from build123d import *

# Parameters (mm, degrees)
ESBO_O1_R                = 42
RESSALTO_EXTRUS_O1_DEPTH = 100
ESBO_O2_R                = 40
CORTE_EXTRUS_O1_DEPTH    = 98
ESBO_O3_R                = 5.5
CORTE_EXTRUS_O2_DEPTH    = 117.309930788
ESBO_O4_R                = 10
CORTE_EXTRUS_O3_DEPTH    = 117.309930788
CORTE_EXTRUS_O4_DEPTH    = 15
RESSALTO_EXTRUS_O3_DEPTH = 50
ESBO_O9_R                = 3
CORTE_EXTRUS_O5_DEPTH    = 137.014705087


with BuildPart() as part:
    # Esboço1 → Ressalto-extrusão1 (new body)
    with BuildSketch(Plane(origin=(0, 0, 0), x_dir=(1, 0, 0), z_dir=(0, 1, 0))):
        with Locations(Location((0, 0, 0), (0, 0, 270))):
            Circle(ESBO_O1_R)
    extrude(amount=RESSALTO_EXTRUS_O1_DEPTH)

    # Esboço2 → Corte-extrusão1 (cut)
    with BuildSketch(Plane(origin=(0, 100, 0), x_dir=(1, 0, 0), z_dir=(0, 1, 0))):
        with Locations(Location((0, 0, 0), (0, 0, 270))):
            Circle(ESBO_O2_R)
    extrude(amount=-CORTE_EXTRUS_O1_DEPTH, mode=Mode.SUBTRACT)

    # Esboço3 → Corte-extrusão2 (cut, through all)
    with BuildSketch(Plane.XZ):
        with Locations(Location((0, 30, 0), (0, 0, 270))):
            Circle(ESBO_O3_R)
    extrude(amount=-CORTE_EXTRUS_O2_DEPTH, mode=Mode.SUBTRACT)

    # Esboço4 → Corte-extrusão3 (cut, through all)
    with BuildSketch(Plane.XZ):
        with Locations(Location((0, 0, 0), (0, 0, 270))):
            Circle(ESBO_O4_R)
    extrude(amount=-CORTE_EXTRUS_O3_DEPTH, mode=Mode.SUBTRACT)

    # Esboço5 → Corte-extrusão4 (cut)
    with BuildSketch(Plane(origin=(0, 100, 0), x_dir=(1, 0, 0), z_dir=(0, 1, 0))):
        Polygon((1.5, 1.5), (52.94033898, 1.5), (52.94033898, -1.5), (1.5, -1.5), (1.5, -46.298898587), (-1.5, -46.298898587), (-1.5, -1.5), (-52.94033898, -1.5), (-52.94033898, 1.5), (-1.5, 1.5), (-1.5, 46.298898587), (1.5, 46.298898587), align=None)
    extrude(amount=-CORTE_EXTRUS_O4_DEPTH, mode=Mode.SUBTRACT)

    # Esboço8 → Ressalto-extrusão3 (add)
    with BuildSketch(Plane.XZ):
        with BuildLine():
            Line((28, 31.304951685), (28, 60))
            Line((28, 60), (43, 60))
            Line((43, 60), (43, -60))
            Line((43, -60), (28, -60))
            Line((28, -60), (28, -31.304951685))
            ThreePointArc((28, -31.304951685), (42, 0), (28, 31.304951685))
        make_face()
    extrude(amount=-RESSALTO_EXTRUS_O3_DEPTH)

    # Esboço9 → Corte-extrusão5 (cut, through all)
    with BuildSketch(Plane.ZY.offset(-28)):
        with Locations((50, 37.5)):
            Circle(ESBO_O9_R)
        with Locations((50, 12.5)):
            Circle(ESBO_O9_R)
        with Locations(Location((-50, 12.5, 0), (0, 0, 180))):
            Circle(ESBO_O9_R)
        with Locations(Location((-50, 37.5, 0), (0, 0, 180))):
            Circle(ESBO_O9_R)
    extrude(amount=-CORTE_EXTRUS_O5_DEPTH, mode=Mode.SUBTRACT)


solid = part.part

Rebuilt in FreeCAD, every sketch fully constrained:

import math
import FreeCAD as App
import Part
import Sketcher

V = App.Vector
Q = App.Units.Quantity

doc = App.newDocument("Part")
params = doc.addObject("Spreadsheet::Sheet", "Params")
for row, (alias, value) in enumerate([
    ("sketch1_diameter", "84 mm"),
    ("pad1_length", "100 mm"),
    ("sketch2_diameter", "80 mm"),
    ("pocket1_length", "98 mm"),
    ("sketch3_diameter", "11 mm"),
    ("sketch4_diameter", "20 mm"),
    ("sketch5_width", "3 mm"),
    ("pocket4_length", "15 mm"),
    ("sketch6_radius", "42 mm"),
    ("sketch6_width", "15 mm"),
    ("sketch6_height", "120 mm"),
    ("pad2_length", "50 mm"),
    ("sketch7_diameter", "6 mm"),
], start=1):
    params.set(f"A{row}", alias)
    params.set(f"B{row}", "=" + value)
    params.setAlias(f"B{row}", alias)

body = doc.addObject("PartDesign::Body", "Body")

sketch1 = doc.addObject("Sketcher::SketchObject", "Sketch")
body.addObject(sketch1)
sketch1.AttachmentSupport = (doc.XZ_Plane, [""])
sketch1.MapMode = "FlatFace"
sketch1.addGeometry(Part.Circle(V(0, 0, 0), V(0, 0, 1), 42), False)
sketch1.addConstraint(Sketcher.Constraint("Coincident", 0, 3, -1, 1))
sketch1.addConstraint(Sketcher.Constraint("Diameter", 0, Q("84 mm")))
sketch1.setExpression("Constraints[1]", "Params.sketch1_diameter")
pad1 = doc.addObject("PartDesign::Pad", "Pad")
body.addObject(pad1)
pad1.Profile = sketch1
pad1.setExpression("Length", "Params.pad1_length")
pad1.Reversed = True

sketch2 = doc.addObject("Sketcher::SketchObject", "Sketch001")
body.addObject(sketch2)
sketch2.AttachmentSupport = (doc.XZ_Plane, [""])
sketch2.MapMode = "FlatFace"
sketch2.AttachmentOffset = App.Placement(V(0, 0, -100), App.Rotation())
sketch2.addGeometry(Part.Circle(V(0, 0, 0), V(0, 0, 1), 40), False)
sketch2.addConstraint(Sketcher.Constraint("Coincident", 0, 3, -1, 1))
sketch2.addConstraint(Sketcher.Constraint("Diameter", 0, Q("80 mm")))
sketch2.setExpression("Constraints[1]", "Params.sketch2_diameter")
pocket1 = doc.addObject("PartDesign::Pocket", "Pocket")
body.addObject(pocket1)
pocket1.Profile = sketch2
pocket1.setExpression("Length", "Params.pocket1_length")
pocket1.Reversed = True

sketch3 = doc.addObject("Sketcher::SketchObject", "Sketch002")
body.addObject(sketch3)
sketch3.AttachmentSupport = (doc.XZ_Plane, [""])
sketch3.MapMode = "FlatFace"
sketch3.addGeometry(Part.Circle(V(0, 30, 0), V(0, 0, 1), 5.5), False)
sketch3.addConstraint(Sketcher.Constraint("PointOnObject", 0, 3, -2))
sketch3.addConstraint(Sketcher.Constraint("Diameter", 0, Q("11 mm")))
sketch3.addConstraint(Sketcher.Constraint("DistanceY", -1, 1, 0, 3, Q("30 mm")))
sketch3.setExpression("Constraints[1]", "Params.sketch3_diameter")
pocket2 = doc.addObject("PartDesign::Pocket", "Pocket001")
body.addObject(pocket2)
pocket2.Profile = sketch3
pocket2.Type = "ThroughAll"

sketch4 = doc.addObject("Sketcher::SketchObject", "Sketch003")
body.addObject(sketch4)
sketch4.AttachmentSupport = (doc.XZ_Plane, [""])
sketch4.MapMode = "FlatFace"
sketch4.addGeometry(Part.Circle(V(0, 0, 0), V(0, 0, 1), 10), False)
sketch4.addConstraint(Sketcher.Constraint("Coincident", 0, 3, -1, 1))
sketch4.addConstraint(Sketcher.Constraint("Diameter", 0, Q("20 mm")))
sketch4.setExpression("Constraints[1]", "Params.sketch4_diameter")
pocket3 = doc.addObject("PartDesign::Pocket", "Pocket002")
body.addObject(pocket3)
pocket3.Profile = sketch4
pocket3.Type = "ThroughAll"

sketch5 = doc.addObject("Sketcher::SketchObject", "Sketch004")
body.addObject(sketch5)
sketch5.AttachmentSupport = (doc.XZ_Plane, [""])
sketch5.MapMode = "FlatFace"
sketch5.AttachmentOffset = App.Placement(V(0, 0, -100), App.Rotation())
sketch5.addGeometry(Part.LineSegment(V(52.940339, -1.5, 0), V(1.5, -1.5, 0)), False)
sketch5.addGeometry(Part.LineSegment(V(1.5, -1.5, 0), V(1.5, -46.298899, 0)), False)
sketch5.addGeometry(Part.LineSegment(V(1.5, -46.298899, 0), V(-1.5, -46.298899, 0)), False)
sketch5.addGeometry(Part.LineSegment(V(-1.5, -46.298899, 0), V(-1.5, -1.5, 0)), False)
sketch5.addGeometry(Part.LineSegment(V(-1.5, -1.5, 0), V(-52.940339, -1.5, 0)), False)
sketch5.addGeometry(Part.LineSegment(V(-52.940339, -1.5, 0), V(-52.940339, 1.5, 0)), False)
sketch5.addGeometry(Part.LineSegment(V(-52.940339, 1.5, 0), V(-1.5, 1.5, 0)), False)
sketch5.addGeometry(Part.LineSegment(V(-1.5, 1.5, 0), V(-1.5, 46.298899, 0)), False)
sketch5.addGeometry(Part.LineSegment(V(-1.5, 46.298899, 0), V(1.5, 46.298899, 0)), False)
sketch5.addGeometry(Part.LineSegment(V(1.5, 46.298899, 0), V(1.5, 1.5, 0)), False)
sketch5.addGeometry(Part.LineSegment(V(1.5, 1.5, 0), V(52.940339, 1.5, 0)), False)
sketch5.addGeometry(Part.LineSegment(V(52.940339, 1.5, 0), V(52.940339, -1.5, 0)), False)
sketch5.addConstraint(Sketcher.Constraint("Coincident", 0, 2, 1, 1))
sketch5.addConstraint(Sketcher.Constraint("Coincident", 1, 2, 2, 1))
sketch5.addConstraint(Sketcher.Constraint("Coincident", 2, 2, 3, 1))
sketch5.addConstraint(Sketcher.Constraint("Coincident", 3, 2, 4, 1))
sketch5.addConstraint(Sketcher.Constraint("Coincident", 4, 2, 5, 1))
sketch5.addConstraint(Sketcher.Constraint("Coincident", 5, 2, 6, 1))
sketch5.addConstraint(Sketcher.Constraint("Coincident", 6, 2, 7, 1))
sketch5.addConstraint(Sketcher.Constraint("Coincident", 7, 2, 8, 1))
sketch5.addConstraint(Sketcher.Constraint("Coincident", 8, 2, 9, 1))
sketch5.addConstraint(Sketcher.Constraint("Coincident", 9, 2, 10, 1))
sketch5.addConstraint(Sketcher.Constraint("Coincident", 10, 2, 11, 1))
sketch5.addConstraint(Sketcher.Constraint("Coincident", 11, 2, 0, 1))
sketch5.addConstraint(Sketcher.Constraint("Horizontal", 0))
sketch5.addConstraint(Sketcher.Constraint("Vertical", 1))
sketch5.addConstraint(Sketcher.Constraint("Horizontal", 2))
sketch5.addConstraint(Sketcher.Constraint("Vertical", 3))
sketch5.addConstraint(Sketcher.Constraint("Horizontal", 4))
sketch5.addConstraint(Sketcher.Constraint("Vertical", 5))
sketch5.addConstraint(Sketcher.Constraint("Horizontal", 6))
sketch5.addConstraint(Sketcher.Constraint("Vertical", 7))
sketch5.addConstraint(Sketcher.Constraint("Horizontal", 8))
sketch5.addConstraint(Sketcher.Constraint("Vertical", 9))
sketch5.addConstraint(Sketcher.Constraint("Horizontal", 10))
sketch5.addConstraint(Sketcher.Constraint("Vertical", 11))
sketch5.addConstraint(Sketcher.Constraint("Symmetric", 0, 2, 6, 2, -1, 1))
sketch5.addConstraint(Sketcher.Constraint("Symmetric", 2, 2, 8, 2, -1, 1))
sketch5.addConstraint(Sketcher.Constraint("Symmetric", 4, 2, 10, 2, -1, 1))
sketch5.addConstraint(Sketcher.Constraint("Symmetric", 0, 2, 3, 2, -2))
sketch5.addConstraint(Sketcher.Constraint("Equal", 8, 5))
sketch5.addConstraint(Sketcher.Constraint("DistanceX", 2, 2, 2, 1, Q("3 mm")))
sketch5.addConstraint(Sketcher.Constraint("DistanceY", 1, 2, 1, 1, Q("44.798899 mm")))
sketch5.addConstraint(Sketcher.Constraint("DistanceX", 0, 2, 0, 1, Q("51.440339 mm")))
sketch5.setExpression("Constraints[29]", "Params.sketch5_width")
pocket4 = doc.addObject("PartDesign::Pocket", "Pocket003")
body.addObject(pocket4)
pocket4.Profile = sketch5
pocket4.setExpression("Length", "Params.pocket4_length")
pocket4.Reversed = True

sketch6 = doc.addObject("Sketcher::SketchObject", "Sketch005")
body.addObject(sketch6)
sketch6.AttachmentSupport = (doc.XZ_Plane, [""])
sketch6.MapMode = "FlatFace"
sketch6.addGeometry(Part.LineSegment(V(28, 60, 0), V(28, 31.304952, 0)), False)
sketch6.addGeometry(Part.ArcOfCircle(Part.Circle(V(0, 0, 0), V(0, 0, 1), 42), math.radians(-48.189685), math.radians(48.189685)), False)
sketch6.addGeometry(Part.LineSegment(V(28, -31.304952, 0), V(28, -60, 0)), False)
sketch6.addGeometry(Part.LineSegment(V(28, -60, 0), V(43, -60, 0)), False)
sketch6.addGeometry(Part.LineSegment(V(43, -60, 0), V(43, 60, 0)), False)
sketch6.addGeometry(Part.LineSegment(V(43, 60, 0), V(28, 60, 0)), False)
sketch6.addConstraint(Sketcher.Constraint("Coincident", 0, 2, 1, 2))
sketch6.addConstraint(Sketcher.Constraint("Coincident", 1, 1, 2, 1))
sketch6.addConstraint(Sketcher.Constraint("Coincident", 2, 2, 3, 1))
sketch6.addConstraint(Sketcher.Constraint("Coincident", 3, 2, 4, 1))
sketch6.addConstraint(Sketcher.Constraint("Coincident", 4, 2, 5, 1))
sketch6.addConstraint(Sketcher.Constraint("Coincident", 5, 2, 0, 1))
sketch6.addConstraint(Sketcher.Constraint("Vertical", 0))
sketch6.addConstraint(Sketcher.Constraint("Vertical", 2))
sketch6.addConstraint(Sketcher.Constraint("Horizontal", 3))
sketch6.addConstraint(Sketcher.Constraint("Vertical", 4))
sketch6.addConstraint(Sketcher.Constraint("Horizontal", 5))
sketch6.addConstraint(Sketcher.Constraint("Coincident", 1, 3, -1, 1))
sketch6.addConstraint(Sketcher.Constraint("Symmetric", 2, 2, 5, 2, -1))
sketch6.addConstraint(Sketcher.Constraint("Radius", 1, Q("42 mm")))
sketch6.addConstraint(Sketcher.Constraint("DistanceX", 3, 1, 3, 2, Q("15 mm")))
sketch6.addConstraint(Sketcher.Constraint("DistanceY", 4, 1, 4, 2, Q("120 mm")))
sketch6.addConstraint(Sketcher.Constraint("DistanceX", -1, 1, 0, 2, Q("28 mm")))
sketch6.setExpression("Constraints[13]", "Params.sketch6_radius")
sketch6.setExpression("Constraints[14]", "Params.sketch6_width")
sketch6.setExpression("Constraints[15]", "Params.sketch6_height")
pad2 = doc.addObject("PartDesign::Pad", "Pad001")
body.addObject(pad2)
pad2.Profile = sketch6
pad2.setExpression("Length", "Params.pad2_length")
pad2.Reversed = True

sketch7 = doc.addObject("Sketcher::SketchObject", "Sketch006")
body.addObject(sketch7)
sketch7.AttachmentSupport = (doc.YZ_Plane, [""])
sketch7.MapMode = "FlatFace"
sketch7.AttachmentOffset = App.Placement(V(0, 0, 28), App.Rotation())
sketch7.addGeometry(Part.Circle(V(37.5, 50, 0), V(0, 0, 1), 3), False)
sketch7.addGeometry(Part.Circle(V(12.5, 50, 0), V(0, 0, 1), 3), False)
sketch7.addGeometry(Part.Circle(V(12.5, -50, 0), V(0, 0, 1), 3), False)
sketch7.addGeometry(Part.Circle(V(37.5, -50, 0), V(0, 0, 1), 3), False)
sketch7.addConstraint(Sketcher.Constraint("Equal", 0, 1))
sketch7.addConstraint(Sketcher.Constraint("Equal", 1, 2))
sketch7.addConstraint(Sketcher.Constraint("Equal", 2, 3))
sketch7.addConstraint(Sketcher.Constraint("Symmetric", 1, 3, 2, 3, -1))
sketch7.addConstraint(Sketcher.Constraint("Symmetric", 0, 3, 3, 3, -1))
sketch7.addConstraint(Sketcher.Constraint("Horizontal", 0, 3, 1, 3))
sketch7.addConstraint(Sketcher.Constraint("Diameter", 0, Q("6 mm")))
sketch7.addConstraint(Sketcher.Constraint("DistanceY", -1, 1, 0, 3, Q("50 mm")))
sketch7.addConstraint(Sketcher.Constraint("DistanceX", 1, 3, 0, 3, Q("25 mm")))
sketch7.addConstraint(Sketcher.Constraint("DistanceX", -1, 1, 0, 3, Q("37.5 mm")))
sketch7.setExpression("Constraints[6]", "Params.sketch7_diameter")
pocket5 = doc.addObject("PartDesign::Pocket", "Pocket004")
body.addObject(pocket5)
pocket5.Profile = sketch7
pocket5.Type = "ThroughAll"
pocket5.Reversed = True

doc.recompute()
